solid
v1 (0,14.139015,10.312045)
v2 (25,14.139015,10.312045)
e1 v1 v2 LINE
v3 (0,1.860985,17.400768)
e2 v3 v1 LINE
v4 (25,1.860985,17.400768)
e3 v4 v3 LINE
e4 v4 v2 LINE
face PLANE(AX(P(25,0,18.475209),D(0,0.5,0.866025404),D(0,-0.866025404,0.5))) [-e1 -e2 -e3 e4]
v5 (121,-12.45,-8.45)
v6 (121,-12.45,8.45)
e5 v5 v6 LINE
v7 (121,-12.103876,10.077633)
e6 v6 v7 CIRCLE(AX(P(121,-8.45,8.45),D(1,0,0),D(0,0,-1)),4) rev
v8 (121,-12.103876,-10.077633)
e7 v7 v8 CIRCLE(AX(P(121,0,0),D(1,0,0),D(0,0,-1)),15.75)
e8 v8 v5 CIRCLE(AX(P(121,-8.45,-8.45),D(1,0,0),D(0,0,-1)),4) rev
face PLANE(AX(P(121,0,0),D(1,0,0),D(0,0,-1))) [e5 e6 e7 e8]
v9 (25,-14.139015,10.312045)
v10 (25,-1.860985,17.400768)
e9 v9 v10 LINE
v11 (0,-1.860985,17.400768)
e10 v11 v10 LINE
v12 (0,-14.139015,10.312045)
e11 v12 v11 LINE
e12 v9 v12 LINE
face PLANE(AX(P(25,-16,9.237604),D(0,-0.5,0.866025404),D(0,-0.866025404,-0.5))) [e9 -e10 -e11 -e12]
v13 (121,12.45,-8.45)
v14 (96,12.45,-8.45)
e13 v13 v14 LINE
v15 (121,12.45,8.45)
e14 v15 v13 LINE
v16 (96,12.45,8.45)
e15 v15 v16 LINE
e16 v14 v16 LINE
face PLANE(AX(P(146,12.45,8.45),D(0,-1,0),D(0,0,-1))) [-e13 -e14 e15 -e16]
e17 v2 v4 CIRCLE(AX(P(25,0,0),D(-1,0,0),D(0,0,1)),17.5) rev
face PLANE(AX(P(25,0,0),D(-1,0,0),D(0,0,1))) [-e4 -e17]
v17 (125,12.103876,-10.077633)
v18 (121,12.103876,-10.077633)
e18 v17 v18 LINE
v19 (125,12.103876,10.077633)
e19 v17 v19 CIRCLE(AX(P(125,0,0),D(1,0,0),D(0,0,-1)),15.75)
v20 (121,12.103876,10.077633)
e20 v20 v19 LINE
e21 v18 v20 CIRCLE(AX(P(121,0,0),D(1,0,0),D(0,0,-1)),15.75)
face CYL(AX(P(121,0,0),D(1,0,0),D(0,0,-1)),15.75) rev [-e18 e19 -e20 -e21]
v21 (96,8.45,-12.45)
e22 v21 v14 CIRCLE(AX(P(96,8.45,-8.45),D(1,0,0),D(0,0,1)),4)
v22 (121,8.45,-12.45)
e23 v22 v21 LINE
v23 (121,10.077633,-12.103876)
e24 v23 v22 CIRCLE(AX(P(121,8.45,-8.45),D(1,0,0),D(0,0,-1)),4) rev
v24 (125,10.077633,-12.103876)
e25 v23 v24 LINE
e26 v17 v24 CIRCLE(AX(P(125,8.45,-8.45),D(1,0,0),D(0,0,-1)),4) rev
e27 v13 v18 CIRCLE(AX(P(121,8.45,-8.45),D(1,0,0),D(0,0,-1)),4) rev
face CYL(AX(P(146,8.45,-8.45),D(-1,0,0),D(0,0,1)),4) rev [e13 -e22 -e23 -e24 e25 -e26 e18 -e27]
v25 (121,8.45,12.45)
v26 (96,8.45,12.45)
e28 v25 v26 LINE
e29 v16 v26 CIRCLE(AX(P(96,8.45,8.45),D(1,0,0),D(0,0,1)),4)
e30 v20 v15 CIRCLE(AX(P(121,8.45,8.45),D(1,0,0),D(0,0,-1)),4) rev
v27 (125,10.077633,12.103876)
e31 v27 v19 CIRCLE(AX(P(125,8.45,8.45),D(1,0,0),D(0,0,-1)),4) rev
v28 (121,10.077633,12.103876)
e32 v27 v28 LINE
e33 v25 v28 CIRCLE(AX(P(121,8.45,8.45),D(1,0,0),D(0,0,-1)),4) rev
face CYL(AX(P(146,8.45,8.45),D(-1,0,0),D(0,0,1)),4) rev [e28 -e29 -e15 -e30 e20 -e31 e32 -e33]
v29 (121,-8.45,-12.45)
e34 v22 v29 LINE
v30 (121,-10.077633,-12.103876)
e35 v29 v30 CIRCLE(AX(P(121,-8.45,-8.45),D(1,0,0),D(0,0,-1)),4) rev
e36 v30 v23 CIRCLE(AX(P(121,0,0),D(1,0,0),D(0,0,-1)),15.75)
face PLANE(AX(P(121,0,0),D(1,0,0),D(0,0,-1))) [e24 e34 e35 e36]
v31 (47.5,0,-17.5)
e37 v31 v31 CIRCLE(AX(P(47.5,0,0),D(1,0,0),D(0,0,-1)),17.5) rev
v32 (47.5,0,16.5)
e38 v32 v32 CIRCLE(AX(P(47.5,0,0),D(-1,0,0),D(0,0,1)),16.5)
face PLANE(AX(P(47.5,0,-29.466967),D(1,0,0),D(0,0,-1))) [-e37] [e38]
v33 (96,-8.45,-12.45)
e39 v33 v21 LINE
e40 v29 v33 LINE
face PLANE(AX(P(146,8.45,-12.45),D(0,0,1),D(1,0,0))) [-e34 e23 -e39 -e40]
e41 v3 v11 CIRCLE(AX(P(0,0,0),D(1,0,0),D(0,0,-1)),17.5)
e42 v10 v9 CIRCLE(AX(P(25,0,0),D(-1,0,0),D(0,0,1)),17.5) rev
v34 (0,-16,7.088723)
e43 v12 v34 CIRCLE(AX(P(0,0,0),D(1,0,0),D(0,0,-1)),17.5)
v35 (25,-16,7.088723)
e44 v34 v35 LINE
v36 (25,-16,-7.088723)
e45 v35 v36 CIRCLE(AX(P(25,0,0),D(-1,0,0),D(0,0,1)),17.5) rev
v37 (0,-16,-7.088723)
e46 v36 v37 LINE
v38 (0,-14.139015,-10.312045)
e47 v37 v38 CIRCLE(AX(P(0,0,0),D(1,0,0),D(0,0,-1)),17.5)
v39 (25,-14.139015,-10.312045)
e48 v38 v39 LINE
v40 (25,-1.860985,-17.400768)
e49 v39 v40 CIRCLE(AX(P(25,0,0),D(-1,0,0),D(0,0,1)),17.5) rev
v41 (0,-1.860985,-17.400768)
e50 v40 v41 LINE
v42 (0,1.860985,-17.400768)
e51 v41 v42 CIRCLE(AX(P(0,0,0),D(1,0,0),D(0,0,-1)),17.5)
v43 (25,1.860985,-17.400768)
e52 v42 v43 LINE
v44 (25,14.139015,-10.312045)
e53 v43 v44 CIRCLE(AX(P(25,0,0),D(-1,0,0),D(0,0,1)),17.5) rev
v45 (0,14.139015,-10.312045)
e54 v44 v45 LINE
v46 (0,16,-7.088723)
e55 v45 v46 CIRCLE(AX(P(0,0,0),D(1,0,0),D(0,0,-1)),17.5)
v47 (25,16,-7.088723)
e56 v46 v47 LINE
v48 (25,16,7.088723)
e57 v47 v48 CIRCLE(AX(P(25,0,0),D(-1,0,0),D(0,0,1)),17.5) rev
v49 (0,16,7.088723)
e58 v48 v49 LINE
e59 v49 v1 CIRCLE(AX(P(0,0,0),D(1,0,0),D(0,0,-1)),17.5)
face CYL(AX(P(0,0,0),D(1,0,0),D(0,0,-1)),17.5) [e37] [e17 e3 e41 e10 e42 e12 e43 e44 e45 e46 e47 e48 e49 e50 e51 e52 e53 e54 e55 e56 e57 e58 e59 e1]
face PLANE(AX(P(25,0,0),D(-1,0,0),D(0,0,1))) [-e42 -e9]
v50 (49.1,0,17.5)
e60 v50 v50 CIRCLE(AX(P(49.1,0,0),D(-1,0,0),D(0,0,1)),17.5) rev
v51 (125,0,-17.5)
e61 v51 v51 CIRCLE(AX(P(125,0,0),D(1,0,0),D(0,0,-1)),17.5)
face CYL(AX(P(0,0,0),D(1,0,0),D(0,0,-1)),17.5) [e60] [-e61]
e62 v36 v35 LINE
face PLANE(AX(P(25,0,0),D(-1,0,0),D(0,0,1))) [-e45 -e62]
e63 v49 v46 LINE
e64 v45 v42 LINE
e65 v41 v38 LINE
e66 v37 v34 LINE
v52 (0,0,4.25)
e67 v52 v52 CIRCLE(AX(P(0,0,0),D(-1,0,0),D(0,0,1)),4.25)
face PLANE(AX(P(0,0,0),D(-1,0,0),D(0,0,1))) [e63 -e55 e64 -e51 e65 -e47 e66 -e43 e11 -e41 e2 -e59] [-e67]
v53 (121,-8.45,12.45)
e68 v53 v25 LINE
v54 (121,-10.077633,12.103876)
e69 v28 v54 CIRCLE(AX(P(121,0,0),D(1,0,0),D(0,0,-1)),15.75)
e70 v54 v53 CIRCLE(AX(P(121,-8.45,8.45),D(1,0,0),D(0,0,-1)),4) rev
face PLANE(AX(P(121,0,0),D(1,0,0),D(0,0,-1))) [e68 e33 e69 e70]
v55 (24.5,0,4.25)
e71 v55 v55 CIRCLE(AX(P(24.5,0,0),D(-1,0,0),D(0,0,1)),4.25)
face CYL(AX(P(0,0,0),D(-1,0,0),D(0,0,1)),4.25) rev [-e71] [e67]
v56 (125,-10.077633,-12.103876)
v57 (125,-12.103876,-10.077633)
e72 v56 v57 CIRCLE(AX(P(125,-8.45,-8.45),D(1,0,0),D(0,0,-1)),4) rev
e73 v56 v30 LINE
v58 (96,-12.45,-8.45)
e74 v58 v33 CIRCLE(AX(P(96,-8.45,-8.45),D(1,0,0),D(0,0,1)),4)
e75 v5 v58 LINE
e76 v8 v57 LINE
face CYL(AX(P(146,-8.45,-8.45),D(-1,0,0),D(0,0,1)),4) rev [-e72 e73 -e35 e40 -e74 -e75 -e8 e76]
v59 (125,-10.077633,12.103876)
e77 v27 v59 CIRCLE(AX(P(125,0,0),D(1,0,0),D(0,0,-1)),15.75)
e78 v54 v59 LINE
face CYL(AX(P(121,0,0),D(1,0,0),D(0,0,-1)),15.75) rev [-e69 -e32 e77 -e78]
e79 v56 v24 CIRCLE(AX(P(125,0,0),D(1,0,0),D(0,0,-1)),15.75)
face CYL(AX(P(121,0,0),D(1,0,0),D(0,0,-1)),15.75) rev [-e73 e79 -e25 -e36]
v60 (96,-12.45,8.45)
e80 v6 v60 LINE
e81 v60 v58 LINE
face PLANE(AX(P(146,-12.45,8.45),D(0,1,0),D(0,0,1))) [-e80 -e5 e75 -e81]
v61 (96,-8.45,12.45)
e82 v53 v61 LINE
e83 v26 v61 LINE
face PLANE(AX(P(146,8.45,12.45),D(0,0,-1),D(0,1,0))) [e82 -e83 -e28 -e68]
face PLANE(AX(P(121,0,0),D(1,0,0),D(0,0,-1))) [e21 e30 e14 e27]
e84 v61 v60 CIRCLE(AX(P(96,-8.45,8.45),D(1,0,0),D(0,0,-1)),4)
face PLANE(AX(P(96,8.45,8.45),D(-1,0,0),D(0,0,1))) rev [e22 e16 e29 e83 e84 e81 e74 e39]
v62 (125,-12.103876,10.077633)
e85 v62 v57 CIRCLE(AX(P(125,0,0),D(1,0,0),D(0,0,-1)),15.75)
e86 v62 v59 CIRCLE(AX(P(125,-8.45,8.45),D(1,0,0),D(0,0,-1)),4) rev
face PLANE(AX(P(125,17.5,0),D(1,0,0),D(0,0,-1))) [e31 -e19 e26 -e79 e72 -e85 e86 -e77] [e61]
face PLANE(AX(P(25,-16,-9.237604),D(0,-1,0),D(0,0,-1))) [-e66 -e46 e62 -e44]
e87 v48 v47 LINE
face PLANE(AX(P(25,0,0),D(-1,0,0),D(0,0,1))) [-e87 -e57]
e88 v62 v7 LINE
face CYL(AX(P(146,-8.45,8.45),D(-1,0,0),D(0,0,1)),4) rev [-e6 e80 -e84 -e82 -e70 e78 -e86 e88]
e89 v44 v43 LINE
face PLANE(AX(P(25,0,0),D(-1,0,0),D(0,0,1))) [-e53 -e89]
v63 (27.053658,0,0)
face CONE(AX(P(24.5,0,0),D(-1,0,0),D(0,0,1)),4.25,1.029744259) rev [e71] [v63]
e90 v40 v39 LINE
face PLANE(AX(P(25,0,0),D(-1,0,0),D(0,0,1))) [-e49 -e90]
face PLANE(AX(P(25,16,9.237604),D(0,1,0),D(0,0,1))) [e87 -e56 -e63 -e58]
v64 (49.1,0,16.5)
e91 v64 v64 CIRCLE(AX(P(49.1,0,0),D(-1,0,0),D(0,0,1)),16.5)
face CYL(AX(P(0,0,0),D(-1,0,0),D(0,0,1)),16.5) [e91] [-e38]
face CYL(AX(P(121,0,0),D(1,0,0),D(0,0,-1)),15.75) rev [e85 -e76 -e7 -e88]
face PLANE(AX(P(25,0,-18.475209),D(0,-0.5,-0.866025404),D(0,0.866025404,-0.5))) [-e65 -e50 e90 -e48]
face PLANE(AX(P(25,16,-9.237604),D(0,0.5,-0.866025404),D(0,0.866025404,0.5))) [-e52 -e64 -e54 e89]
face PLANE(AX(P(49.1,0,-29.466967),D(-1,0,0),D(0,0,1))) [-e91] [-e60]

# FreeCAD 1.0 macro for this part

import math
import FreeCAD as App
import Part
import Sketcher
Q = App.Units.Quantity


def add_polygon(sketch, points):
    """Adds a closed chain of lines whose ends are joined by coincident constraints."""
    first, n = sketch.GeometryCount, len(points)
    for a, b in zip(points, points[1:] + points[:1]):
        sketch.addGeometry(Part.LineSegment(App.Vector(*a, 0), App.Vector(*b, 0)), False)
    for i in range(n):
        sketch.addConstraint(Sketcher.Constraint("Coincident", first + i, 2, first + (i + 1) % n, 1))

doc = App.newDocument("Part")
params = doc.addObject("Spreadsheet::Sheet", "Params")
for row, (alias, value) in enumerate([
    ("sketch1_width", "125 mm"),
    ("sketch1_height", "17.5 mm"),
    ("revolution_angle", "360 deg"),
    ("sketch2_diameter", "31.5 mm"),
    ("pocket1_length", "4 mm"),
    ("sketch3_radius", "4 mm"),
    ("sketch3_width", "16.9 mm"),
    ("pocket2_length", "25 mm"),
    ("pocket2_length2", "25 mm"),
    ("pocket3_length", "25 mm"),
    ("sketch5_width", "1.6 mm"),
    ("groove_angle", "360 deg"),
    ("sketch6_diameter", "8.5 mm"),
    ("hole_diameter", "8.5 mm"),
    ("hole_depth", "24.5 mm"),
], start=1):
    params.set(f"A{row}", alias)
    params.set(f"B{row}", "=" + value)
    params.setAlias(f"B{row}", alias)

body = doc.addObject("PartDesign::Body", "Body")

# Sketch on XY plane
sketch1 = body.newObject("Sketcher::SketchObject", "Sketch")
sketch1.AttachmentSupport = (doc.getObject("XY_Plane"), [""])
sketch1.MapMode = "FlatFace"
add_polygon(sketch1, [(0, 18), (0, 0), (125, 0), (125, 18)])  # lines 0-3
sketch1.addConstraint([
    Sketcher.Constraint("Vertical", 0),
    Sketcher.Constraint("Horizontal", 1),
    Sketcher.Constraint("Vertical", 2),
    Sketcher.Constraint("Horizontal", 3),
    Sketcher.Constraint("Coincident", 0, 2, -1, 1),
    Sketcher.Constraint("DistanceX", 1, 1, 1, 2, 125.0),
    Sketcher.Constraint("DistanceY", 0, 2, 0, 1, 17.5),
])
sketch1.setExpression("Constraints[9]", "Params.sketch1_width")
sketch1.setExpression("Constraints[10]", "Params.sketch1_height")
revolution = body.newObject("PartDesign::Revolution", "Revolution")
revolution.Profile = sketch1
revolution.ReferenceAxis = (sketch1, ["H_Axis"])
revolution.setExpression("Angle", "Params.revolution_angle")

# Sketch on YZ plane
sketch2 = body.newObject("Sketcher::SketchObject", "Sketch001")
sketch2.AttachmentSupport = (doc.getObject("YZ_Plane"), [""])
sketch2.MapMode = "FlatFace"
sketch2.AttachmentOffset = App.Placement(App.Vector(0, 0, 125), App.Rotation())
sketch2.addGeometry(Part.Circle(App.Vector(0, 0, 0), App.Vector(0, 0, 1), 16), False)
sketch2.addConstraint([
    Sketcher.Constraint("Coincident", 0, 3, -1, 1),
    Sketcher.Constraint("Diameter", 0, 31.5),
])
sketch2.setExpression("Constraints[1]", "Params.sketch2_diameter")
pocket1 = body.newObject("PartDesign::Pocket", "Pocket")
pocket1.Profile = sketch2
pocket1.setExpression("Length", "Params.pocket1_length")

# Sketch on YZ plane
sketch3 = body.newObject("Sketcher::SketchObject", "Sketch002")
sketch3.AttachmentSupport = (doc.getObject("YZ_Plane"), [""])
sketch3.MapMode = "FlatFace"
sketch3.AttachmentOffset = App.Placement(App.Vector(0, 0, 121), App.Rotation())
sketch3.addGeometry([
    Part.LineSegment(App.Vector(12.4, -8.4, 0), App.Vector(12.4, 8.4, 0)),  # 0
    Part.ArcOfCircle(Part.Circle(App.Vector(8.5, 8.5, 0), App.Vector(0, 0, 1), 4), math.radians(0), math.radians(90)),  # 1
    Part.LineSegment(App.Vector(8.4, 12.4, 0), App.Vector(-8.4, 12.4, 0)),  # 2
    Part.ArcOfCircle(Part.Circle(App.Vector(-8.5, 8.5, 0), App.Vector(0, 0, 1), 4), math.radians(90), math.radians(180)),  # 3
    Part.LineSegment(App.Vector(-12.4, 8.4, 0), App.Vector(-12.4, -8.4, 0)),  # 4
    Part.ArcOfCircle(Part.Circle(App.Vector(-8.5, -8.5, 0), App.Vector(0, 0, 1), 4), math.radians(180), math.radians(270)),  # 5
    Part.LineSegment(App.Vector(-8.4, -12.4, 0), App.Vector(8.4, -12.4, 0)),  # 6
    Part.ArcOfCircle(Part.Circle(App.Vector(8.5, -8.5, 0), App.Vector(0, 0, 1), 4), math.radians(-90), math.radians(0)),  # 7
], False)
sketch3.addConstraint([
    Sketcher.Constraint("Tangent", 0, 2, 1, 1),
    Sketcher.Constraint("Tangent", 1, 2, 2, 1),
    Sketcher.Constraint("Tangent", 2, 2, 3, 1),
    Sketcher.Constraint("Tangent", 3, 2, 4, 1),
    Sketcher.Constraint("Tangent", 4, 2, 5, 1),
    Sketcher.Constraint("Tangent", 5, 2, 6, 1),
    Sketcher.Constraint("Tangent", 6, 2, 7, 1),
    Sketcher.Constraint("Tangent", 7, 2, 0, 1),
    Sketcher.Constraint("Vertical", 0),
    Sketcher.Constraint("Horizontal", 2),
    Sketcher.Constraint("Vertical", 4),
    Sketcher.Constraint("Horizontal", 6),
    Sketcher.Constraint("Equal", 1, 3),
    Sketcher.Constraint("Equal", 3, 5),
    Sketcher.Constraint("Equal", 5, 7),
    Sketcher.Constraint("Symmetric", 1, 3, 5, 3, -1, 1),
    Sketcher.Constraint("Equal", 6, 0),
    Sketcher.Constraint("Radius", 1, 4.0),
    Sketcher.Constraint("DistanceX", 2, 2, 2, 1, 16.9),
])
sketch3.setExpression("Constraints[17]", "Params.sketch3_radius")
sketch3.setExpression("Constraints[18]", "Params.sketch3_width")
pocket2 = body.newObject("PartDesign::Pocket", "Pocket001")
pocket2.Profile = sketch3
pocket2.Type = "TwoLengths"
pocket2.setExpression("Length", "Params.pocket2_length")
pocket2.setExpression("Length2", "Params.pocket2_length2")
pocket2.Reversed = True

# Sketch on YZ plane
sketch4 = body.newObject("Sketcher::SketchObject", "Sketch003")
sketch4.AttachmentSupport = (doc.getObject("YZ_Plane"), [""])
sketch4.MapMode = "FlatFace"
add_polygon(sketch4, [(32, -32), (-32, -32), (-32, 32), (32, 32)])  # lines 0-3
add_polygon(sketch4, [(16, -9), (16, 9), (0, 18), (-16, 9), (-16, -9), (0, -18)])  # lines 4-9
sketch4.addConstraint([
    Sketcher.Constraint("Horizontal", 0),
    Sketcher.Constraint("Vertical", 1),
    Sketcher.Constraint("Horizontal", 2),
    Sketcher.Constraint("Vertical", 3),
    Sketcher.Constraint("Vertical", 4),
    Sketcher.Constraint("Vertical", 7),
    Sketcher.Constraint("Symmetric", 0, 2, 2, 2, -1, 1),
    Sketcher.Constraint("Symmetric", 4, 2, 7, 2, -1, 1),
    Sketcher.Constraint("Symmetric", 5, 2, 8, 2, -1, 1),
    Sketcher.Constraint("PointOnObject", 5, 2, -2),
    Sketcher.Constraint("Parallel", 6, 9),
    Sketcher.Constraint("Horizontal", 4, 2, 6, 2),
    Sketcher.Constraint("Equal", 2, 1),
    Sketcher.Constraint("Angle", 5, Q("150 deg")),
    Sketcher.Constraint("DistanceX", -1, 1, 4, 2, 16.0),
    Sketcher.Constraint("DistanceX", 0, 2, 0, 1, 63.888),
    Sketcher.Constraint("DistanceY", 4, 1, 4, 2, 18.475209),
])
pocket3 = body.newObject("PartDesign::Pocket", "Pocket002")
pocket3.Profile = sketch4
pocket3.setExpression("Length", "Params.pocket3_length")
pocket3.Reversed = True

# Sketch on XZ plane
sketch5 = body.newObject("Sketcher::SketchObject", "Sketch004")
sketch5.AttachmentSupport = (doc.getObject("XZ_Plane"), [""])
sketch5.MapMode = "FlatFace"
add_polygon(sketch5, [(47.5, -29.5), (47.5, -16.5), (49.1, -16.5), (49.1, -29.5)])  # lines 0-3
sketch5.addConstraint([
    Sketcher.Constraint("Vertical", 0),
    Sketcher.Constraint("Horizontal", 1),
    Sketcher.Constraint("Vertical", 2),
    Sketcher.Constraint("Horizontal", 3),
    Sketcher.Constraint("DistanceX", 1, 1, 1, 2, 1.6),
    Sketcher.Constraint("DistanceX", -1, 1, 0, 2, 47.5),
    Sketcher.Constraint("DistanceY", 0, 2, -1, 1, 16.5),
    Sketcher.Constraint("DistanceY", 0, 1, 0, 2, 12.966967),
])
sketch5.setExpression("Constraints[8]", "Params.sketch5_width")
groove = body.newObject("PartDesign::Groove", "Groove")
groove.Profile = sketch5
groove.ReferenceAxis = (sketch5, ["H_Axis"])
groove.setExpression("Angle", "Params.groove_angle")

# Sketch on YZ plane
sketch6 = body.newObject("Sketcher::SketchObject", "Sketch005")
sketch6.AttachmentSupport = (doc.getObject("YZ_Plane"), [""])
sketch6.MapMode = "FlatFace"
sketch6.addGeometry(Part.Circle(App.Vector(0, 0, 0), App.Vector(0, 0, 1), 4.2), False)
sketch6.addConstraint([
    Sketcher.Constraint("Coincident", 0, 3, -1, 1),
    Sketcher.Constraint("Diameter", 0, 8.5),
])
sketch6.setExpression("Constraints[1]", "Params.sketch6_diameter")
doc.recompute()
hole = body.newObject("PartDesign::Hole", "Hole")
hole.Profile = sketch6
hole.ThreadType = "None"
hole.setExpression("Diameter", "Params.hole_diameter")
hole.DepthType = "Dimension"
hole.setExpression("Depth", "Params.hole_depth")
hole.DrillPoint = "Angled"
hole.DrillPointAngle = 118
hole.Reversed = True

doc.recompute()
